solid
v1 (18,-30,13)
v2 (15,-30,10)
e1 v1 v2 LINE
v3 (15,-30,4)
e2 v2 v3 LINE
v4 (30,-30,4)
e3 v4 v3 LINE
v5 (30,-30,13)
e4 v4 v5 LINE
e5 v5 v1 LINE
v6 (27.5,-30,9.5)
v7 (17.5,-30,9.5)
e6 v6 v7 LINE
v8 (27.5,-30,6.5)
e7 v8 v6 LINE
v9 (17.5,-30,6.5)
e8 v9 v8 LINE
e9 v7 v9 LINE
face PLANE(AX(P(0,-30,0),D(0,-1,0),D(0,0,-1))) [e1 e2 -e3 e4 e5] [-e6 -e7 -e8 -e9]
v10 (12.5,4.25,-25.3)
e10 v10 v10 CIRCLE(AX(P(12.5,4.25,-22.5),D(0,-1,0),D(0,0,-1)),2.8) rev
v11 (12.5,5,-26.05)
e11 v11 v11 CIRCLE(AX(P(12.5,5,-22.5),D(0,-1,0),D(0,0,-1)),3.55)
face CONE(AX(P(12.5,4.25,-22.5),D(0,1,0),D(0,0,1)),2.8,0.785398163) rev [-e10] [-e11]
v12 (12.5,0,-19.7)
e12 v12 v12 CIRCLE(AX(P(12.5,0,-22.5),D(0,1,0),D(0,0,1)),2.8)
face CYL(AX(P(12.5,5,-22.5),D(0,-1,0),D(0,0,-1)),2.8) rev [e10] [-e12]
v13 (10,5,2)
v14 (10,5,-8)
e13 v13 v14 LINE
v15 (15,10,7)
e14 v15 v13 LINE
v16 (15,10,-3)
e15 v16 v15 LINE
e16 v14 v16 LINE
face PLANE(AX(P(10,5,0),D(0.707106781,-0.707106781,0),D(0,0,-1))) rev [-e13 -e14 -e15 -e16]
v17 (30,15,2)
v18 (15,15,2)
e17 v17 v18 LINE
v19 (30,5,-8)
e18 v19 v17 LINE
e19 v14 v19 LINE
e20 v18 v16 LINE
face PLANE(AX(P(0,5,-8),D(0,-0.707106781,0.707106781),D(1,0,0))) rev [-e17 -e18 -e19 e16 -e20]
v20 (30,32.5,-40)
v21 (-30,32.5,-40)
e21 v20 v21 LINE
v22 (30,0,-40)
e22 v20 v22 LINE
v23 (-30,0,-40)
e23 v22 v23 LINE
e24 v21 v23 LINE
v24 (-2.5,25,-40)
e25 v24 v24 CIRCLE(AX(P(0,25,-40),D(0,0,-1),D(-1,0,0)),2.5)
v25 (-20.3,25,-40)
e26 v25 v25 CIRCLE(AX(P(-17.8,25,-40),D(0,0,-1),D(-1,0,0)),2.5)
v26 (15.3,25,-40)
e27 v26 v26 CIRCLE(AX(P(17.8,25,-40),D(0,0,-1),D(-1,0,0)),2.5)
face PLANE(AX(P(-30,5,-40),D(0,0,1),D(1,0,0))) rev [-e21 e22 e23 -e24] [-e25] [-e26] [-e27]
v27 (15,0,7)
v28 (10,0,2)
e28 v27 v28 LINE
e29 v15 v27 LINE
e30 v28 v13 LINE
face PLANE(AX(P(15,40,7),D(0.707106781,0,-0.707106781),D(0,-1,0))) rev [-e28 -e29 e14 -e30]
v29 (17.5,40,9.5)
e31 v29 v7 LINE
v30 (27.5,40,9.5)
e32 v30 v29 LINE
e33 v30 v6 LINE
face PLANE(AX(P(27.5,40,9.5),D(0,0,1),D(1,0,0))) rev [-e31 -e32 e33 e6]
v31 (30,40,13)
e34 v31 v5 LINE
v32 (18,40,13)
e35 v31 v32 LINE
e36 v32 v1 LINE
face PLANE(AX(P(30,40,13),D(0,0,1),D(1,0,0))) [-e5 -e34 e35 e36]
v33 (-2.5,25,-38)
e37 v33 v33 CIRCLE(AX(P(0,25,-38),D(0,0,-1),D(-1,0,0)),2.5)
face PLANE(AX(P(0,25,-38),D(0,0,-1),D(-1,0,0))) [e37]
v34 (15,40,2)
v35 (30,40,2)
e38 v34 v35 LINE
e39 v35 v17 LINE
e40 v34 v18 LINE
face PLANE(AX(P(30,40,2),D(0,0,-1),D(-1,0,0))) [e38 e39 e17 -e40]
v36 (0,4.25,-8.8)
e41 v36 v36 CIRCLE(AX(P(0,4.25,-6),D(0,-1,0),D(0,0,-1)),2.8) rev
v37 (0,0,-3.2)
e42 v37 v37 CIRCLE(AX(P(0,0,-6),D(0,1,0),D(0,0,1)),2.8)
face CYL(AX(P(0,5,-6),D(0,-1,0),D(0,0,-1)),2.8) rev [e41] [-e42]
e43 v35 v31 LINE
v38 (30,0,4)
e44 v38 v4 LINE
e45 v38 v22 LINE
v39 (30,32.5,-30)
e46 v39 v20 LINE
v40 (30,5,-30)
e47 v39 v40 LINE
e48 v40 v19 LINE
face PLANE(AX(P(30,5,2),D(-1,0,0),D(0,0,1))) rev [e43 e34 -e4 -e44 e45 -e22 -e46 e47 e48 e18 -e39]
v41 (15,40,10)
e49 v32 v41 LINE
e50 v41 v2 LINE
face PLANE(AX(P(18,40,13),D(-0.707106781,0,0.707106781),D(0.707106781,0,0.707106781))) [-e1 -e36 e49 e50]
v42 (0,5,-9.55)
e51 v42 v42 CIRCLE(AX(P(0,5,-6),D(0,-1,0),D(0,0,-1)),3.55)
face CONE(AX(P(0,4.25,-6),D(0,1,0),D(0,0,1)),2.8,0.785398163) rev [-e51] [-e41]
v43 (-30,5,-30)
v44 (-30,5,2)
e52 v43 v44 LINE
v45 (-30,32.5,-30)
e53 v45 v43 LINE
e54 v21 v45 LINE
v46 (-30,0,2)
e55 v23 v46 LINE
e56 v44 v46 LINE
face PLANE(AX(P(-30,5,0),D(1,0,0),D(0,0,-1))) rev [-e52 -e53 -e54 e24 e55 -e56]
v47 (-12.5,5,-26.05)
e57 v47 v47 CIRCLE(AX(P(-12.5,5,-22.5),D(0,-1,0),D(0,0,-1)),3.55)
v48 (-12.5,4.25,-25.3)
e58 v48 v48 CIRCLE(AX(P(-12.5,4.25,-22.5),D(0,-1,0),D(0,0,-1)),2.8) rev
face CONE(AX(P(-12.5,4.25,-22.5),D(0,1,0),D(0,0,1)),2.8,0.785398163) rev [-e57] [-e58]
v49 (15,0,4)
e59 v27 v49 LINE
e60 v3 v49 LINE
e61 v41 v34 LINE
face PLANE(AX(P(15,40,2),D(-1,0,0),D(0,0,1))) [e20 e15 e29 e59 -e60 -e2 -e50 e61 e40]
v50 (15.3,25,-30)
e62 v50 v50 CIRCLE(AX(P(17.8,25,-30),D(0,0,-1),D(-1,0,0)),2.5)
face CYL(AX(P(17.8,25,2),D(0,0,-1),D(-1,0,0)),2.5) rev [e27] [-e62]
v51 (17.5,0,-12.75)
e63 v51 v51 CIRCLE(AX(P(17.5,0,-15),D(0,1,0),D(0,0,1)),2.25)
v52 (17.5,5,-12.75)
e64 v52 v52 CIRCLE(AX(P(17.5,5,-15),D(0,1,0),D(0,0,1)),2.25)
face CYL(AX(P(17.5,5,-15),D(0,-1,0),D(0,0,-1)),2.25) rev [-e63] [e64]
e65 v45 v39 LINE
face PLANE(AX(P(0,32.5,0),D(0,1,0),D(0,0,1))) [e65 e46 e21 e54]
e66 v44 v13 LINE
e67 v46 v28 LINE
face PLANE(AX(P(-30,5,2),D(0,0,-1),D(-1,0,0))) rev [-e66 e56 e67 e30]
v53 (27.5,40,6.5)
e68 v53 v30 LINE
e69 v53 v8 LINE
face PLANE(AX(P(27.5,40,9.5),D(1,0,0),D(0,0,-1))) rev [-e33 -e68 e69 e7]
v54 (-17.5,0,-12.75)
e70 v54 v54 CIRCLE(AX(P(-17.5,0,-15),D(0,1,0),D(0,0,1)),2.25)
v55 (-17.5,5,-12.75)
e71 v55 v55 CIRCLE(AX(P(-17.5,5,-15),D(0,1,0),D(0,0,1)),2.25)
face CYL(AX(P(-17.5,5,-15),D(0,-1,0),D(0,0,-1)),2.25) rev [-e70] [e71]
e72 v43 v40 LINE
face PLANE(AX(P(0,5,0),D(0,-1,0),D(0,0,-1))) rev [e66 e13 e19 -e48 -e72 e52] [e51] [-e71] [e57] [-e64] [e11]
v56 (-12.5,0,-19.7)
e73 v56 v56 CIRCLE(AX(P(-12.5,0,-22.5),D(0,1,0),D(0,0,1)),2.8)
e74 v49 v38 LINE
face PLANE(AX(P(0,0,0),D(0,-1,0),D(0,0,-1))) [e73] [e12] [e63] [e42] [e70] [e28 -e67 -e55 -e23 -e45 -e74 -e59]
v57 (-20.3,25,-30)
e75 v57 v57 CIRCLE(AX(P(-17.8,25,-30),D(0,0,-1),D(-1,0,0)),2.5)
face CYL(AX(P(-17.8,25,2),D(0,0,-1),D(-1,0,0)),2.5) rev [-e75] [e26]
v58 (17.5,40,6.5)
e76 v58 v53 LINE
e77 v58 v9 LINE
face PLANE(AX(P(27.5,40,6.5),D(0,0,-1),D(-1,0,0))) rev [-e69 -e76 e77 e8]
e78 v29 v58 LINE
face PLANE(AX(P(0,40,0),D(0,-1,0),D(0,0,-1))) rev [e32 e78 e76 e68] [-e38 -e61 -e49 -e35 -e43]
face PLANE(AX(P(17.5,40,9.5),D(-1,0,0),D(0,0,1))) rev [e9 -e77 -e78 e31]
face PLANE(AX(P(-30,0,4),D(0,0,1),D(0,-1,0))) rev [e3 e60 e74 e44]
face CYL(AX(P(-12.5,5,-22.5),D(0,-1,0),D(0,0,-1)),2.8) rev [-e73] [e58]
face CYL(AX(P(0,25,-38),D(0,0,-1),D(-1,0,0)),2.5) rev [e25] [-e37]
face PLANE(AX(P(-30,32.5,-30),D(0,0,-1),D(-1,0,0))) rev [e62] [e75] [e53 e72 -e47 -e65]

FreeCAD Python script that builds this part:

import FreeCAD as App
import Part
import Sketcher

V = App.Vector
Q = App.Units.Quantity


def edges_at(feature, points):
    """Names of the edges that pass closest to the given points."""
    edges = feature.Shape.Edges
    near = lambda p: min(range(len(edges)), key=lambda i: edges[i].distToShape(Part.Vertex(*p))[0])
    return sorted({f"Edge{near(p) + 1}" for p in points})


def add_polygon(sketch, points):
    """Adds a closed chain of lines whose ends are joined by coincident constraints."""
    first, n = sketch.GeometryCount, len(points)
    for a, b in zip(points, points[1:] + points[:1]):
        sketch.addGeometry(Part.LineSegment(App.Vector(*a, 0), App.Vector(*b, 0)), False)
    for i in range(n):
        sketch.addConstraint(Sketcher.Constraint("Coincident", first + i, 2, first + (i + 1) % n, 1))

doc = App.newDocument("Part")
body = doc.addObject("PartDesign::Body", "Body")

sketch1 = body.newObject("Sketcher::SketchObject", "Sketch")
sketch1.AttachmentSupport = (doc.getObject("XZ_Plane"), [""])
sketch1.MapMode = "FlatFace"
add_polygon(sketch1, [(-30, -40), (-30, 2), (30, 2), (30, -40)])
sketch1.addGeometry(Part.Circle(V(0, -6, 0), V(0, 0, 1), 2.8), False)
sketch1.addGeometry(Part.Circle(V(17.5, -15, 0), V(0, 0, 1), 2.25), False)
sketch1.addGeometry(Part.Circle(V(12.5, -22.5, 0), V(0, 0, 1), 2.8), False)
sketch1.addGeometry(Part.Circle(V(-17.5, -15, 0), V(0, 0, 1), 2.25), False)
sketch1.addGeometry(Part.Circle(V(-12.5, -22.5, 0), V(0, 0, 1), 2.8), False)
sketch1.addConstraint(Sketcher.Constraint("Vertical", 0))
sketch1.addConstraint(Sketcher.Constraint("Horizontal", 1))
sketch1.addConstraint(Sketcher.Constraint("Vertical", 2))
sketch1.addConstraint(Sketcher.Constraint("Horizontal", 3))
sketch1.addConstraint(Sketcher.Constraint("Equal", 4, 6))
sketch1.addConstraint(Sketcher.Constraint("Equal", 5, 7))
sketch1.addConstraint(Sketcher.Constraint("Equal", 6, 8))
sketch1.addConstraint(Sketcher.Constraint("Symmetric", 5, 3, 7, 3, -2))
sketch1.addConstraint(Sketcher.Constraint("Symmetric", 6, 3, 8, 3, -2))
sketch1.addConstraint(Sketcher.Constraint("PointOnObject", 4, 3, -2))
sketch1.addConstraint(Sketcher.Constraint("Diameter", 4, Q("5.6 mm")))
sketch1.addConstraint(Sketcher.Constraint("Diameter", 5, Q("4.5 mm")))
sketch1.addConstraint(Sketcher.Constraint("DistanceX", 1, 1, 1, 2, Q("60 mm")))
sketch1.addConstraint(Sketcher.Constraint("DistanceY", 0, 1, 0, 2, Q("42 mm")))
sketch1.addConstraint(Sketcher.Constraint("DistanceY", 4, 3, -1, 1, Q("6 mm")))
sketch1.addConstraint(Sketcher.Constraint("DistanceY", 5, 3, -1, 1, Q("15 mm")))
sketch1.addConstraint(Sketcher.Constraint("DistanceX", 0, 2, -1, 1, Q("30 mm")))
sketch1.addConstraint(Sketcher.Constraint("DistanceY", -1, 1, 0, 2, Q("2 mm")))
sketch1.addConstraint(Sketcher.Constraint("DistanceX", 6, 3, 5, 3, Q("5 mm")))
sketch1.addConstraint(Sketcher.Constraint("DistanceX", 7, 3, 6, 3, Q("30 mm")))
sketch1.addConstraint(Sketcher.Constraint("DistanceY", 6, 3, -1, 1, Q("22.5 mm")))
pad1 = body.newObject("PartDesign::Pad", "Pad")
pad1.Profile = sketch1
pad1.Length = 5
pad1.Reversed = True

sketch2 = body.newObject("Sketcher::SketchObject", "Sketch001")
sketch2.AttachmentSupport = (doc.getObject("XZ_Plane"), [""])
sketch2.MapMode = "FlatFace"
sketch2.AttachmentOffset = App.Placement(V(0, 0, -5), App.Rotation())
add_polygon(sketch2, [(-30, -40), (-30, -30), (30, -30), (30, -40)])
sketch2.addConstraint(Sketcher.Constraint("Vertical", 0))
sketch2.addConstraint(Sketcher.Constraint("Horizontal", 1))
sketch2.addConstraint(Sketcher.Constraint("Vertical", 2))
sketch2.addConstraint(Sketcher.Constraint("Horizontal", 3))
sketch2.addConstraint(Sketcher.Constraint("DistanceX", 1, 1, 1, 2, Q("60 mm")))
sketch2.addConstraint(Sketcher.Constraint("DistanceY", 0, 1, 0, 2, Q("10 mm")))
sketch2.addConstraint(Sketcher.Constraint("DistanceX", 0, 2, -1, 1, Q("30 mm")))
sketch2.addConstraint(Sketcher.Constraint("DistanceY", 0, 2, -1, 1, Q("30 mm")))
pad2 = body.newObject("PartDesign::Pad", "Pad001")
pad2.Profile = sketch2
pad2.Length = 27.5
pad2.Reversed = True

sketch3 = body.newObject("Sketcher::SketchObject", "Sketch002")
sketch3.AttachmentSupport = (doc.getObject("XY_Plane"), [""])
sketch3.MapMode = "FlatFace"
sketch3.AttachmentOffset = App.Placement(V(0, 0, -40), App.Rotation())
sketch3.addGeometry(Part.Circle(V(17.8, 25, 0), V(0, 0, 1), 2.5), False)
sketch3.addGeometry(Part.Circle(V(-17.8, 25, 0), V(0, 0, 1), 2.5), False)
sketch3.addConstraint(Sketcher.Constraint("Equal", 0, 1))
sketch3.addConstraint(Sketcher.Constraint("Symmetric", 0, 3, 1, 3, -2))
sketch3.addConstraint(Sketcher.Constraint("Diameter", 0, Q("5 mm")))
sketch3.addConstraint(Sketcher.Constraint("DistanceY", -1, 1, 0, 3, Q("25 mm")))
sketch3.addConstraint(Sketcher.Constraint("DistanceX", -1, 1, 0, 3, Q("17.8 mm")))
pocket1 = body.newObject("PartDesign::Pocket", "Pocket")
pocket1.Profile = sketch3
pocket1.Type = "ThroughAll"
pocket1.Reversed = True
doc.recompute()

chamfer = body.newObject("PartDesign::Chamfer", "Chamfer")
chamfer.Base = (pocket1, edges_at(pocket1, [(-12.5, 5, -25.3), (12.5, 5, -25.3), (0, 5, -8.8)]))
chamfer.Size = 0.75

sketch4 = body.newObject("Sketcher::SketchObject", "Sketch003")
sketch4.AttachmentSupport = (doc.getObject("XZ_Plane"), [""])
sketch4.MapMode = "FlatFace"
add_polygon(sketch4, [(18, 13), (15, 10), (15, 2), (30, 2), (30, 13)])
add_polygon(sketch4, [(27.5, 6.5), (17.5, 6.5), (17.5, 9.5), (27.5, 9.5)])
sketch4.addConstraint(Sketcher.Constraint("Vertical", 1))
sketch4.addConstraint(Sketcher.Constraint("Horizontal", 2))
sketch4.addConstraint(Sketcher.Constraint("Vertical", 3))
sketch4.addConstraint(Sketcher.Constraint("Horizontal", 4))
sketch4.addConstraint(Sketcher.Constraint("Horizontal", 5))
sketch4.addConstraint(Sketcher.Constraint("Vertical", 6))
sketch4.addConstraint(Sketcher.Constraint("Horizontal", 7))
sketch4.addConstraint(Sketcher.Constraint("Vertical", 8))
sketch4.addConstraint(Sketcher.Constraint("DistanceX", 2, 1, 2, 2, Q("15 mm")))
sketch4.addConstraint(Sketcher.Constraint("DistanceX", 4, 2, 4, 1, Q("12 mm")))
sketch4.addConstraint(Sketcher.Constraint("DistanceX", 5, 2, 5, 1, Q("10 mm")))
sketch4.addConstraint(Sketcher.Constraint("DistanceY", 1, 2, 1, 1, Q("8 mm")))
sketch4.addConstraint(Sketcher.Constraint("DistanceY", 3, 1, 3, 2, Q("11 mm")))
sketch4.addConstraint(Sketcher.Constraint("DistanceY", 6, 1, 6, 2, Q("3 mm")))
sketch4.addConstraint(Sketcher.Constraint("DistanceX", -1, 1, 0, 2, Q("15 mm")))
sketch4.addConstraint(Sketcher.Constraint("DistanceY", -1, 1, 0, 2, Q("10 mm")))
sketch4.addConstraint(Sketcher.Constraint("DistanceX", -1, 1, 5, 2, Q("17.5 mm")))
sketch4.addConstraint(Sketcher.Constraint("DistanceY", -1, 1, 5, 2, Q("6.5 mm")))
pad3 = body.newObject("PartDesign::Pad", "Pad002")
pad3.Profile = sketch4
pad3.Type = "TwoLengths"
pad3.Length = 30
pad3.Length2 = 40
doc.recompute()

chamfer2 = body.newObject("PartDesign::Chamfer", "Chamfer001")
chamfer2.Base = (pad3, edges_at(pad3, [(22.5, 5, 2)]))
chamfer2.Size = 10
doc.recompute()

chamfer3 = body.newObject("PartDesign::Chamfer", "Chamfer002")
chamfer3.Base = (chamfer2, edges_at(chamfer2, [(15, 2.5, 2), (15, 5, -3)]))
chamfer3.Size = 5

sketch5 = body.newObject("Sketcher::SketchObject", "Sketch004")
sketch5.AttachmentSupport = (doc.getObject("YZ_Plane"), [""])
sketch5.MapMode = "FlatFace"
sketch5.AttachmentOffset = App.Placement(V(0, 0, 30), App.Rotation())
add_polygon(sketch5, [(0, 4), (-30, 4), (-30, 2), (0, 2)])
sketch5.addConstraint(Sketcher.Constraint("Horizontal", 0))
sketch5.addConstraint(Sketcher.Constraint("Vertical", 1))
sketch5.addConstraint(Sketcher.Constraint("Horizontal", 2))
sketch5.addConstraint(Sketcher.Constraint("Vertical", 3))
sketch5.addConstraint(Sketcher.Constraint("PointOnObject", 2, 2, -2))
sketch5.addConstraint(Sketcher.Constraint("DistanceX", 0, 2, 0, 1, Q("30 mm")))
sketch5.addConstraint(Sketcher.Constraint("DistanceY", 1, 2, 1, 1, Q("2 mm")))
sketch5.addConstraint(Sketcher.Constraint("DistanceY", -1, 1, 0, 2, Q("4 mm")))
pocket2 = body.newObject("PartDesign::Pocket", "Pocket001")
pocket2.Profile = sketch5
pocket2.Type = "ThroughAll"

sketch6 = body.newObject("Sketcher::SketchObject", "Sketch005")
sketch6.AttachmentSupport = (doc.getObject("YZ_Plane"), [""])
sketch6.MapMode = "FlatFace"
sketch6.AttachmentOffset = App.Placement(V(0, 0, 30), App.Rotation())
add_polygon(sketch6, [(32.5, -30), (32.5, 2), (15, 2), (5, -8), (5, -30)])
sketch6.addConstraint(Sketcher.Constraint("Vertical", 0))
sketch6.addConstraint(Sketcher.Constraint("Horizontal", 1))
sketch6.addConstraint(Sketcher.Constraint("Vertical", 3))
sketch6.addConstraint(Sketcher.Constraint("Horizontal", 4))
sketch6.addConstraint(Sketcher.Constraint("DistanceY", 0, 1, 0, 2, Q("32 mm")))
sketch6.addConstraint(Sketcher.Constraint("DistanceY", 3, 2, 3, 1, Q("22 mm")))
sketch6.addConstraint(Sketcher.Constraint("Angle", 2, Q("-135 deg")))
sketch6.addConstraint(Sketcher.Constraint("DistanceX", 1, 2, 1, 1, Q("17.5 mm")))
sketch6.addConstraint(Sketcher.Constraint("DistanceY", -1, 1, 0, 2, Q("2 mm")))
sketch6.addConstraint(Sketcher.Constraint("DistanceX", -1, 1, 1, 2, Q("15 mm")))
pad4 = body.newObject("PartDesign::Pad", "Pad003")
pad4.Profile = sketch6
pad4.Length = 5
pad4.Reversed = True

sketch7 = body.newObject("Sketcher::SketchObject", "Sketch006")
sketch7.AttachmentSupport = (doc.getObject("YZ_Plane"), [""])
sketch7.MapMode = "FlatFace"
sketch7.AttachmentOffset = App.Placement(V(0, 0, 25), App.Rotation())
add_polygon(sketch7, [(32.5, -30), (5, -30), (5, -8), (15, 2), (32.5, 2)])
sketch7.addConstraint(Sketcher.Constraint("Horizontal", 0))
sketch7.addConstraint(Sketcher.Constraint("Vertical", 1))
sketch7.addConstraint(Sketcher.Constraint("Horizontal", 3))
sketch7.addConstraint(Sketcher.Constraint("Vertical", 4))
sketch7.addConstraint(Sketcher.Constraint("DistanceY", 1, 1, 1, 2, Q("22 mm")))
sketch7.addConstraint(Sketcher.Constraint("DistanceY", 4, 2, 4, 1, Q("32 mm")))
sketch7.addConstraint(Sketcher.Constraint("Angle", 2, Q("45 deg")))
sketch7.addConstraint(Sketcher.Constraint("DistanceX", 0, 2, 0, 1, Q("27.5 mm")))
sketch7.addConstraint(Sketcher.Constraint("DistanceX", -1, 1, 0, 2, Q("5 mm")))
sketch7.addConstraint(Sketcher.Constraint("DistanceY", 0, 2, -1, 1, Q("30 mm")))
pocket3 = body.newObject("PartDesign::Pocket", "Pocket002")
pocket3.Profile = sketch7
pocket3.Type = "ThroughAll"
pocket3.Reversed = True

sketch8 = body.newObject("Sketcher::SketchObject", "Sketch007")
sketch8.AttachmentSupport = (doc.getObject("XY_Plane"), [""])
sketch8.MapMode = "FlatFace"
sketch8.AttachmentOffset = App.Placement(V(0, 0, -40), App.Rotation())
sketch8.addGeometry(Part.Circle(V(0, 25, 0), V(0, 0, 1), 2.5), False)
sketch8.addConstraint(Sketcher.Constraint("PointOnObject", 0, 3, -2))
sketch8.addConstraint(Sketcher.Constraint("Diameter", 0, Q("5 mm")))
sketch8.addConstraint(Sketcher.Constraint("DistanceY", -1, 1, 0, 3, Q("25 mm")))
pocket4 = body.newObject("PartDesign::Pocket", "Pocket003")
pocket4.Profile = sketch8
pocket4.Length = 2
pocket4.Reversed = True

doc.recompute()
